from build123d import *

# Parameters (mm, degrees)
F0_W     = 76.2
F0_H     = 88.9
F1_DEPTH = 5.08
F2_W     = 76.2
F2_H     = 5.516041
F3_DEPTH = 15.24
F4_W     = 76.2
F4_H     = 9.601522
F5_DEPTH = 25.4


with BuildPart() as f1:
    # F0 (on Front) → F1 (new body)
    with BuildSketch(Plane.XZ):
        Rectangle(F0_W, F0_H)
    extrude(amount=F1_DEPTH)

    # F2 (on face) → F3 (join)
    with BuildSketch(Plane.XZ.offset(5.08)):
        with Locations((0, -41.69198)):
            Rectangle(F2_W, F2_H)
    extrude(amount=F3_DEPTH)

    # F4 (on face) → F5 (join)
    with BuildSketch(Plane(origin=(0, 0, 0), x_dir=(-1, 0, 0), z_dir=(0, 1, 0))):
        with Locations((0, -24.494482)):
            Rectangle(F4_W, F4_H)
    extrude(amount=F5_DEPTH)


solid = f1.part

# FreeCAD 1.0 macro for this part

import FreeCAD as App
import Part
import Sketcher

V = App.Vector
Q = App.Units.Quantity


def add_polygon(sketch, points):
    """Adds a closed chain of lines whose ends are joined by coincident constraints."""
    first, n = sketch.GeometryCount, len(points)
    for a, b in zip(points, points[1:] + points[:1]):
        sketch.addGeometry(Part.LineSegment(App.Vector(*a, 0), App.Vector(*b, 0)), False)
    for i in range(n):
        sketch.addConstraint(Sketcher.Constraint("Coincident", first + i, 2, first + (i + 1) % n, 1))

doc = App.newDocument("Part")
params = doc.addObject("Spreadsheet::Sheet", "Params")
for row, (alias, value) in enumerate([
    ("sketch1_width", "3 in"),
    ("sketch1_height", "3.5 in"),
    ("pad1_length", "0.2 in"),
    ("sketch2_width", "3 in"),
    ("pad2_length", "0.6 in"),
    ("sketch3_width", "3 in"),
    ("pad3_length", "1 in"),
], start=1):
    params.set(f"A{row}", alias)
    params.set(f"B{row}", "=" + value)
    params.setAlias(f"B{row}", alias)

body = doc.addObject("PartDesign::Body", "Body")

# Sketch on XZ plane
sketch1 = body.newObject("Sketcher::SketchObject", "Sketch")
sketch1.AttachmentSupport = (doc.getObject("XZ_Plane"), [""])
sketch1.MapMode = "FlatFace"
add_polygon(sketch1, [(-38, 44), (-38, -44), (38, -44), (38, 44)])  # lines 0-3
sketch1.addConstraint(Sketcher.Constraint("Vertical", 0))
sketch1.addConstraint(Sketcher.Constraint("Horizontal", 1))
sketch1.addConstraint(Sketcher.Constraint("Vertical", 2))
sketch1.addConstraint(Sketcher.Constraint("Horizontal", 3))
sketch1.addConstraint(Sketcher.Constraint("Symmetric", 0, 2, 2, 2, -1, 1))
sketch1.addConstraint(Sketcher.Constraint("DistanceX", 1, 1, 1, 2, Q("3 in")))
sketch1.addConstraint(Sketcher.Constraint("DistanceY", 0, 2, 0, 1, Q("3.5 in")))
sketch1.setExpression("Constraints[9]", "Params.sketch1_width")
sketch1.setExpression("Constraints[10]", "Params.sketch1_height")
pad1 = body.newObject("PartDesign::Pad", "Pad")
pad1.Profile = sketch1
pad1.setExpression("Length", "Params.pad1_length")

# Sketch on XZ plane
sketch2 = body.newObject("Sketcher::SketchObject", "Sketch001")
sketch2.AttachmentSupport = (doc.getObject("XZ_Plane"), [""])
sketch2.MapMode = "FlatFace"
sketch2.AttachmentOffset = App.Placement(V(0, 0, 0.2 * 25.4), App.Rotation())
add_polygon(sketch2, [(-38, -39), (-38, -44), (38, -44), (38, -39)])  # lines 0-3
sketch2.addConstraint(Sketcher.Constraint("Vertical", 0))
sketch2.addConstraint(Sketcher.Constraint("Horizontal", 1))
sketch2.addConstraint(Sketcher.Constraint("Vertical", 2))
sketch2.addConstraint(Sketcher.Constraint("Horizontal", 3))
sketch2.addConstraint(Sketcher.Constraint("DistanceX", 1, 1, 1, 2, Q("3 in")))
sketch2.addConstraint(Sketcher.Constraint("DistanceX", 0, 2, -1, 1, Q("1.5 in")))
sketch2.addConstraint(Sketcher.Constraint("DistanceY", 0, 2, -1, 1, Q("1.75 in")))
sketch2.addConstraint(Sketcher.Constraint("DistanceY", 0, 2, 0, 1, Q("5.516041 mm")))
sketch2.setExpression("Constraints[8]", "Params.sketch2_width")
pad2 = body.newObject("PartDesign::Pad", "Pad001")
pad2.Profile = sketch2
pad2.setExpression("Length", "Params.pad2_length")

# Sketch on XZ plane
sketch3 = body.newObject("Sketcher::SketchObject", "Sketch002")
sketch3.AttachmentSupport = (doc.getObject("XZ_Plane"), [""])
sketch3.MapMode = "FlatFace"
add_polygon(sketch3, [(38, -20), (38, -29), (-38, -29), (-38, -20)])  # lines 0-3
sketch3.addConstraint(Sketcher.Constraint("Vertical", 0))
sketch3.addConstraint(Sketcher.Constraint("Horizontal", 1))
sketch3.addConstraint(Sketcher.Constraint("Vertical", 2))
sketch3.addConstraint(Sketcher.Constraint("Horizontal", 3))
sketch3.addConstraint(Sketcher.Constraint("DistanceX", 1, 2, 1, 1, Q("3 in")))
sketch3.addConstraint(Sketcher.Constraint("DistanceX", -1, 1, 0, 2, Q("1.5 in")))
sketch3.addConstraint(Sketcher.Constraint("DistanceY", 0, 2, 0, 1, Q("9.601522 mm")))
sketch3.addConstraint(Sketcher.Constraint("DistanceY", 2, 2, -1, 1, Q("19.693721 mm")))
sketch3.setExpression("Constraints[8]", "Params.sketch3_width")
pad3 = body.newObject("PartDesign::Pad", "Pad002")
pad3.Profile = sketch3
pad3.setExpression("Length", "Params.pad3_length")
pad3.Reversed = True

doc.recompute()
